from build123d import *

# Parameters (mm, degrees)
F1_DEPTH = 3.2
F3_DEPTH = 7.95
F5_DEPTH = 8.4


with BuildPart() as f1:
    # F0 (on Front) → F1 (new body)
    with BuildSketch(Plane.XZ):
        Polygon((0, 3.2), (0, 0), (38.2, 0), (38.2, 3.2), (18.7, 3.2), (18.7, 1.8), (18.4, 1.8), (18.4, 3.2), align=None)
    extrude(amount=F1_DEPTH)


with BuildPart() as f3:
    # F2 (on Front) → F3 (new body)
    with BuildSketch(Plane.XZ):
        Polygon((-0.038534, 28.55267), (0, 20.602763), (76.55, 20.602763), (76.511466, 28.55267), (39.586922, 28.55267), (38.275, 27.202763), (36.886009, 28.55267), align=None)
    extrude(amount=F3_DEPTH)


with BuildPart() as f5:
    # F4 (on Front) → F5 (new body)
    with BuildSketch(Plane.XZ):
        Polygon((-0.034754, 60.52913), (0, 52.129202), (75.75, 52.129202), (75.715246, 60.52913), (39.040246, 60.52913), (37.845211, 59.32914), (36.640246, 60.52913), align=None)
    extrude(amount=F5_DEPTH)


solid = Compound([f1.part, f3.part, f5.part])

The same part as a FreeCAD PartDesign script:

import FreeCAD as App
import Part
import Sketcher

V = App.Vector


def add_polygon(sketch, points):
    """Adds a closed chain of lines whose ends are joined by coincident constraints."""
    first, n = sketch.GeometryCount, len(points)
    for a, b in zip(points, points[1:] + points[:1]):
        sketch.addGeometry(Part.LineSegment(App.Vector(*a, 0), App.Vector(*b, 0)), False)
    for i in range(n):
        sketch.addConstraint(Sketcher.Constraint("Coincident", first + i, 2, first + (i + 1) % n, 1))

doc = App.newDocument("Part")
body = doc.addObject("PartDesign::Body", "Body")

sketch1 = body.newObject("Sketcher::SketchObject", "Sketch")
sketch1.AttachmentSupport = (doc.getObject("XZ_Plane"), [""])
sketch1.MapMode = "FlatFace"
add_polygon(sketch1, [(0, 3.2), (0, 0), (38.2, 0), (38.2, 3.2), (18.7, 3.2), (18.7, 1.8), (18.4, 1.8), (18.4, 3.2)])
sketch1.addConstraint([
    Sketcher.Constraint("Vertical", 0),
    Sketcher.Constraint("Horizontal", 1),
    Sketcher.Constraint("Vertical", 2),
    Sketcher.Constraint("Horizontal", 3),
    Sketcher.Constraint("Vertical", 4),
    Sketcher.Constraint("Horizontal", 5),
    Sketcher.Constraint("Vertical", 6),
    Sketcher.Constraint("Horizontal", 7),
    Sketcher.Constraint("Coincident", 0, 2, -1, 1),
    Sketcher.Constraint("Horizontal", 3, 2, 6, 2),
    Sketcher.Constraint("DistanceX", 1, 1, 1, 2, 38.2),
    Sketcher.Constraint("DistanceX", 3, 2, 3, 1, 19.5),
    Sketcher.Constraint("DistanceX", 5, 2, 5, 1, 0.3),
    Sketcher.Constraint("DistanceY", 0, 2, 0, 1, 3.2),
    Sketcher.Constraint("DistanceY", 4, 2, 4, 1, 1.4),
])
pad1 = body.newObject("PartDesign::Pad", "Pad")
pad1.Profile = sketch1
pad1.Length = 3.2
body2 = doc.addObject("PartDesign::Body", "Body001")

sketch2 = body2.newObject("Sketcher::SketchObject", "Sketch001")
sketch2.AttachmentSupport = (doc.getObject("XZ_Plane001"), [""])
sketch2.MapMode = "FlatFace"
add_polygon(sketch2, [(0, 28.6), (0, 20.6), (76.5, 20.6), (76.5, 28.6), (39.6, 28.6), (38.3, 27.2), (36.9, 28.6)])
sketch2.addConstraint([
    Sketcher.Constraint("Horizontal", 1),
    Sketcher.Constraint("Horizontal", 3),
    Sketcher.Constraint("Horizontal", 6),
    Sketcher.Constraint("PointOnObject", 0, 2, -2),
    Sketcher.Constraint("Parallel", 0, 2),
    Sketcher.Constraint("Perpendicular", 4, 5),
    Sketcher.Constraint("Horizontal", 3, 2, 5, 2),
    Sketcher.Constraint("Equal", 3, 6),
    Sketcher.Constraint("DistanceX", 1, 1, 1, 2, 76.55),
    Sketcher.Constraint("DistanceY", 0, 2, 4, 2, 6.6),
    Sketcher.Constraint("Distance", 0, 7.95),
    Sketcher.Constraint("DistanceX", -1, 1, 4, 2, 38.275),
    Sketcher.Constraint("Distance", 4, 1.882389),
    Sketcher.Constraint("DistanceY", -1, 1, 2, 2, 28.55267),
])
pad2 = body2.newObject("PartDesign::Pad", "Pad001")
pad2.Profile = sketch2
pad2.Length = 7.95
body3 = doc.addObject("PartDesign::Body", "Body002")

sketch3 = body3.newObject("Sketcher::SketchObject", "Sketch002")
sketch3.AttachmentSupport = (doc.getObject("XZ_Plane002"), [""])
sketch3.MapMode = "FlatFace"
add_polygon(sketch3, [(0, 60.5), (0, 52.1), (75.8, 52.1), (75.7, 60.5), (39, 60.5), (37.8, 59.3), (36.6, 60.5)])
sketch3.addConstraint([
    Sketcher.Constraint("Horizontal", 1),
    Sketcher.Constraint("Horizontal", 3),
    Sketcher.Constraint("Horizontal", 6),
    Sketcher.Constraint("PointOnObject", 0, 2, -2),
    Sketcher.Constraint("Parallel", 0, 2),
    Sketcher.Constraint("Perpendicular", 4, 5),
    Sketcher.Constraint("Horizontal", 3, 2, 5, 2),
    Sketcher.Constraint("Equal", 3, 6),
    Sketcher.Constraint("Distance", 0, 8.4),
    Sketcher.Constraint("DistanceX", 1, 1, 1, 2, 75.75),
    Sketcher.Constraint("DistanceX", 5, 2, 3, 2, 2.4),
    Sketcher.Constraint("DistanceY", -1, 1, 2, 2, 60.52913),
    Sketcher.Constraint("DistanceX", -1, 1, 4, 2, 37.845211),
    Sketcher.Constraint("Distance", 4, 1.693542),
])
pad3 = body3.newObject("PartDesign::Pad", "Pad002")
pad3.Profile = sketch3
pad3.Length = 8.4

doc.recompute()
